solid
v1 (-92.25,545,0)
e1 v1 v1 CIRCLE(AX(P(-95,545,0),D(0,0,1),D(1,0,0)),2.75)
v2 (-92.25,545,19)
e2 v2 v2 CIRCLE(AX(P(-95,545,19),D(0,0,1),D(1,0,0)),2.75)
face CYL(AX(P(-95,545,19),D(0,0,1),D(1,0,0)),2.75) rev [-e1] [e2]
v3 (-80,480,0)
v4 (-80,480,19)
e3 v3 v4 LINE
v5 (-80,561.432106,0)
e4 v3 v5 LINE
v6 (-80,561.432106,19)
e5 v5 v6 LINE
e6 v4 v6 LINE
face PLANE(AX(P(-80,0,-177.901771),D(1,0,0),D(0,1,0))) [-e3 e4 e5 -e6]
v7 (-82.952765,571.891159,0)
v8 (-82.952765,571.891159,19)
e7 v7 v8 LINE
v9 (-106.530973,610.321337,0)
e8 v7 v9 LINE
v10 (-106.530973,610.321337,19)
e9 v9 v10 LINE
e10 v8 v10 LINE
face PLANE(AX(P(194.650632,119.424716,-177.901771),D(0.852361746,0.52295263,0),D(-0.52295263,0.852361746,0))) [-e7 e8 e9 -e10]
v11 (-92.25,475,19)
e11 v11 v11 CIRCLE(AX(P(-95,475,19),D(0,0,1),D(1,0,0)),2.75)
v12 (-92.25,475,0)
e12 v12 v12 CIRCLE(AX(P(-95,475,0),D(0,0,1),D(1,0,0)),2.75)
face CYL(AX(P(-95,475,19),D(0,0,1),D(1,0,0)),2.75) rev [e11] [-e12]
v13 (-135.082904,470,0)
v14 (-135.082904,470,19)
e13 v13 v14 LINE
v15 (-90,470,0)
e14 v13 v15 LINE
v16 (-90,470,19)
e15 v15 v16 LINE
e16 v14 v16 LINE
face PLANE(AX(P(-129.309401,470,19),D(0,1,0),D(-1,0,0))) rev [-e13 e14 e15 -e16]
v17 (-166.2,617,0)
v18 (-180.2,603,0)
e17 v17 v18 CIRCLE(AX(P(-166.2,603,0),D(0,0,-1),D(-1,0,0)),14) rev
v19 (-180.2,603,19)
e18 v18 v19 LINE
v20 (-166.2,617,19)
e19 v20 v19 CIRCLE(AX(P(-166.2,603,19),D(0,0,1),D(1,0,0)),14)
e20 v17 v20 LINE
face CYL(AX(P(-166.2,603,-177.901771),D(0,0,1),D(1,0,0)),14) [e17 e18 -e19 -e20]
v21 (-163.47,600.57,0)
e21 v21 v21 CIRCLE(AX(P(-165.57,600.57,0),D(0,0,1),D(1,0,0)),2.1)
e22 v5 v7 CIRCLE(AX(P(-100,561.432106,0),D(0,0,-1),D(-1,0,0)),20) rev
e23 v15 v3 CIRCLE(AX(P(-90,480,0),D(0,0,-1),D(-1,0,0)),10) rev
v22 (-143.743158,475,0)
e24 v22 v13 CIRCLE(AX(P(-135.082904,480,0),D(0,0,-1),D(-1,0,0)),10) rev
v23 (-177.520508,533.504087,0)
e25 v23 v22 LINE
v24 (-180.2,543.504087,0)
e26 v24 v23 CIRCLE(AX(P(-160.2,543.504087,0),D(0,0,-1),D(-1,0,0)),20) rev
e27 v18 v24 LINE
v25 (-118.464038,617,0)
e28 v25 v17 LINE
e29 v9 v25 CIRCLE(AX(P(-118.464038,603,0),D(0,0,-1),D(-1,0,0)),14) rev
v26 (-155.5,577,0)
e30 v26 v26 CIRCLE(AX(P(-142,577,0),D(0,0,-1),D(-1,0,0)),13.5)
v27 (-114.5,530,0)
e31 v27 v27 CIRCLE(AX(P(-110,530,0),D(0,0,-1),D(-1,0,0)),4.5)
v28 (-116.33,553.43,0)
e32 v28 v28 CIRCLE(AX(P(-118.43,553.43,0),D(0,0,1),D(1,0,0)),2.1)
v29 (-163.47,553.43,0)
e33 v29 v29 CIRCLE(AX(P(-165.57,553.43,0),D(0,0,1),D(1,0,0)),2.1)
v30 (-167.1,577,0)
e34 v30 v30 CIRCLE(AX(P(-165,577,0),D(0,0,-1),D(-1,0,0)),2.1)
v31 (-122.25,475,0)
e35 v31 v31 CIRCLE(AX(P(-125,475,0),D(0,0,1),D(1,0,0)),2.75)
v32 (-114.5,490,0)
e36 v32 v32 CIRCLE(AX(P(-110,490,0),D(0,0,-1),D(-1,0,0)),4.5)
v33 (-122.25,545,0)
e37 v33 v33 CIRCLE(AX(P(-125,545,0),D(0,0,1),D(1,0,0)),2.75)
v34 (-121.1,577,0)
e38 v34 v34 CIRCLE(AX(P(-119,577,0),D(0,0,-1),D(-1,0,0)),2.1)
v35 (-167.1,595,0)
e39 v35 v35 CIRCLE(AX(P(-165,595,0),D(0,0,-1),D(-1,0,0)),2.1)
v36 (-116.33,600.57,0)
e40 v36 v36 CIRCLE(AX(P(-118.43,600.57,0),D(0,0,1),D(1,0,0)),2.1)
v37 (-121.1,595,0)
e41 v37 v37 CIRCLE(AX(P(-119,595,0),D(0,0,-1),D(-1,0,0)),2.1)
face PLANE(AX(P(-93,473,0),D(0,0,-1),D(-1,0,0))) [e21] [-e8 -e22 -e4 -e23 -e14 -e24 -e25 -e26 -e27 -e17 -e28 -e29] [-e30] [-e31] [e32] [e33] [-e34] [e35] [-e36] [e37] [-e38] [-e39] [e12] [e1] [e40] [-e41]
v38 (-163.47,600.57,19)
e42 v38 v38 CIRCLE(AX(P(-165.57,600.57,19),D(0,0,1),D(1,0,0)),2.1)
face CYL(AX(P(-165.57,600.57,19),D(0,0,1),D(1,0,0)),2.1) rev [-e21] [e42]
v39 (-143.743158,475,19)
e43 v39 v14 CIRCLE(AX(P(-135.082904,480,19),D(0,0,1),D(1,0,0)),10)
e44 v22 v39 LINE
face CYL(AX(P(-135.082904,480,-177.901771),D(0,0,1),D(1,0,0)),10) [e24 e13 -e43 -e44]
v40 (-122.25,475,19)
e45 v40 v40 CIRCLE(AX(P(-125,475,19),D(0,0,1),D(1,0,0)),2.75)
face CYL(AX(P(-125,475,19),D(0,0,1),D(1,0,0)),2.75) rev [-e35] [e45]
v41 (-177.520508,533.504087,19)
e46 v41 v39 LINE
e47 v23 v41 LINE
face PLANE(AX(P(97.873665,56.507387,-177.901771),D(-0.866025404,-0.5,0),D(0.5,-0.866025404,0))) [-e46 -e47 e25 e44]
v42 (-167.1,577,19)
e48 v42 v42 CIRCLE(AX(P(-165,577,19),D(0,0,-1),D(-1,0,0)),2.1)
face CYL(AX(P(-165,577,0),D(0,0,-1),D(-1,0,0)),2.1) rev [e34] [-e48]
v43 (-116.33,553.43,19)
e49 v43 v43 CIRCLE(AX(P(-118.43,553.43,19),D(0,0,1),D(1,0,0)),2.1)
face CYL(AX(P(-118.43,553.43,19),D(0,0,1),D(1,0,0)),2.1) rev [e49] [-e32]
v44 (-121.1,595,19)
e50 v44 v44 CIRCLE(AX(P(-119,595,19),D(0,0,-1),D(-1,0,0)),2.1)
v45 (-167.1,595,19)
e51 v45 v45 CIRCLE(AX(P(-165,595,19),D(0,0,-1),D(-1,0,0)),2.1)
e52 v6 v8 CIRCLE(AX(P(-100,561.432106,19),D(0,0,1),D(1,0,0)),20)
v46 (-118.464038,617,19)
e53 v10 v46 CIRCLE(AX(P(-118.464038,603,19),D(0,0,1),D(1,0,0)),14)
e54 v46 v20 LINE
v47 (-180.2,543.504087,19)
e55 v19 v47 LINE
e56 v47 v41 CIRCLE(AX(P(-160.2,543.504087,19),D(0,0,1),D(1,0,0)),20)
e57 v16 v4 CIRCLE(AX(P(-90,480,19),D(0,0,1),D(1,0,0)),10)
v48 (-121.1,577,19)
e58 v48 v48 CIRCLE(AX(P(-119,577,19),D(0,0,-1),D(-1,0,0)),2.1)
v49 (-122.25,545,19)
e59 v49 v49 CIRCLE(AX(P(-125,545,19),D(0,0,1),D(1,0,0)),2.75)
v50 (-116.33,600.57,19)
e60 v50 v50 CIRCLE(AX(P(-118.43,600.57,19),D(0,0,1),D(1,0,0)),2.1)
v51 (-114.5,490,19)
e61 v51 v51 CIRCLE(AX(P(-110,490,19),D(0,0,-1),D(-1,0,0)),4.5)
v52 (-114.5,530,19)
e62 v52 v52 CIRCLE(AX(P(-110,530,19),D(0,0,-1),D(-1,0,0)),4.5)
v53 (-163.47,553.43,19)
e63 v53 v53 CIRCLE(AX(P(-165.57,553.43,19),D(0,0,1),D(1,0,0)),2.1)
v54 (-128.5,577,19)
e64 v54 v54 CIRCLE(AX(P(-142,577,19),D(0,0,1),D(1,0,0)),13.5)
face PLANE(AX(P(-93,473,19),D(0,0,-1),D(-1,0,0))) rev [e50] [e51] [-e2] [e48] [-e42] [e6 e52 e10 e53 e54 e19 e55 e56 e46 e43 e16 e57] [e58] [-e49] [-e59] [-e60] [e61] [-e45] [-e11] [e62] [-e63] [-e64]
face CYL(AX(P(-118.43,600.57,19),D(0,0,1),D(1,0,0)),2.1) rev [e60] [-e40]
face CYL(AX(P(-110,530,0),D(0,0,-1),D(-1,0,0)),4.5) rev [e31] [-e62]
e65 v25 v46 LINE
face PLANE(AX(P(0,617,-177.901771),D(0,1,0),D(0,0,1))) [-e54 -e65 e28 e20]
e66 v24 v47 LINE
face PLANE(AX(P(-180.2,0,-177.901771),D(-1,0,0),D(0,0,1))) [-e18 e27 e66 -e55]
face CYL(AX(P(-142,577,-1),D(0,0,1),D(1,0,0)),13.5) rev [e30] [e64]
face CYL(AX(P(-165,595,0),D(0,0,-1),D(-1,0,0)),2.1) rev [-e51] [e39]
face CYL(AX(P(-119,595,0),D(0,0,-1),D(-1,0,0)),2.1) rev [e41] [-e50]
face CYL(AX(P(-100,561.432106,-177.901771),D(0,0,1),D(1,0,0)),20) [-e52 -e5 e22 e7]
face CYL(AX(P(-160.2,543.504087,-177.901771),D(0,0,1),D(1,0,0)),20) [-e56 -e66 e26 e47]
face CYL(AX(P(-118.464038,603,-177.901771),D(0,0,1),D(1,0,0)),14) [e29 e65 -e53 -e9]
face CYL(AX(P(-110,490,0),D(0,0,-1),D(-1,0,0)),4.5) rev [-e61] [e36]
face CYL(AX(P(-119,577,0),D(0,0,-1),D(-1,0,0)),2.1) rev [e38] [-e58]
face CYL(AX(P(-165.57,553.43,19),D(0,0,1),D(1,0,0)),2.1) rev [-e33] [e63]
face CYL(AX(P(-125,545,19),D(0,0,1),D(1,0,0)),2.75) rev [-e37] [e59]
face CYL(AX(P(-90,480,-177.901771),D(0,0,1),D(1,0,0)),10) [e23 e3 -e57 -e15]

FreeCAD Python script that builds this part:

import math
import FreeCAD as App
import Part
import Sketcher
from FreeCAD import Vector
Q = App.Units.Quantity


def edges_at(feature, points):
    """Names of the edges that pass closest to the given points."""
    edges = feature.Shape.Edges
    near = lambda p: min(range(len(edges)), key=lambda i: edges[i].distToShape(Part.Vertex(*p))[0])
    return sorted({f"Edge{near(p) + 1}" for p in points})

doc = App.newDocument("Part")
body = doc.addObject("PartDesign::Body", "Body")

# Sketch on XY plane
sketch1 = body.newObject("Sketcher::SketchObject", "Sketch")
sketch1.AttachmentSupport = (doc.getObject("XY_Plane"), [""])
sketch1.MapMode = "FlatFace"
sketch1.addGeometry([
    Part.LineSegment(Vector(-170.2, 540.824595, 0), Vector(-129.309401, 470, 0)),  # 0
    Part.LineSegment(Vector(-129.309401, 470, 0), Vector(-93, 470, 0)),  # 1
    Part.ArcOfCircle(Part.Circle(Vector(-93, 473, 0), Vector(0, 0, 1), 3), math.radians(-90), math.radians(0)),  # 2
    Part.LineSegment(Vector(-90, 473, 0), Vector(-90, 564.255273, 0)),  # 3
    Part.LineSegment(Vector(-90, 564.255273, 0), Vector(-116.225329, 607, 0)),  # 4
    Part.LineSegment(Vector(-116.225329, 607, 0), Vector(-170.2, 607, 0)),  # 5
    Part.LineSegment(Vector(-170.2, 607, 0), Vector(-170.2, 540.824595, 0)),  # 6
], False)
sketch1.addConstraint([
    Sketcher.Constraint("Coincident", 0, 2, 1, 1),
    Sketcher.Constraint("Tangent", 1, 2, 2, 1),
    Sketcher.Constraint("Tangent", 2, 2, 3, 1),
    Sketcher.Constraint("Coincident", 3, 2, 4, 1),
    Sketcher.Constraint("Coincident", 4, 2, 5, 1),
    Sketcher.Constraint("Coincident", 5, 2, 6, 1),
    Sketcher.Constraint("Coincident", 6, 2, 0, 1),
    Sketcher.Constraint("Horizontal", 1),
    Sketcher.Constraint("Vertical", 3),
    Sketcher.Constraint("Horizontal", 5),
    Sketcher.Constraint("Vertical", 6),
    Sketcher.Constraint("Radius", 2, 3.0),
    Sketcher.Constraint("Angle", 0, Q("-60 deg")),
    Sketcher.Constraint("DistanceX", 2, 3, -1, 1, 93.0),
    Sketcher.Constraint("DistanceY", -1, 1, 2, 3, 473.0),
    Sketcher.Constraint("DistanceY", -1, 1, 4, 2, 607.0),
    Sketcher.Constraint("DistanceX", 5, 2, -1, 1, 170.2),
    Sketcher.Constraint("DistanceX", 1, 1, 1, 2, 36.309401),
    Sketcher.Constraint("DistanceX", 5, 2, 5, 1, 53.974671),
    Sketcher.Constraint("DistanceY", 3, 1, 3, 2, 91.255273),
])
pad1 = body.newObject("PartDesign::Pad", "Pad")
pad1.Profile = sketch1
pad1.Length = 19
doc.recompute()

fillet = body.newObject("PartDesign::Fillet", "Fillet")
fillet.Base = (pad1, edges_at(pad1, [(-90, 564.255, 9.5), (-129.309, 470, 9.5), (-170.2, 540.825, 9.5)]))
fillet.Radius = 10

# Sketch on XY plane
sketch2 = body.newObject("Sketcher::SketchObject", "Sketch001")
sketch2.AttachmentSupport = (doc.getObject("XY_Plane"), [""])
sketch2.MapMode = "FlatFace"
sketch2.AttachmentOffset = App.Placement(Vector(0, 0, 19), App.Rotation())
sketch2.addGeometry(Part.Circle(Vector(-142, 577, 0), Vector(0, 0, 1), 13.5), False)
sketch2.addConstraint([
    Sketcher.Constraint("Diameter", 0, 27.0),
    Sketcher.Constraint("DistanceX", 0, 3, -1, 1, 142.0),
    Sketcher.Constraint("DistanceY", -1, 1, 0, 3, 577.0),
])
pocket1 = body.newObject("PartDesign::Pocket", "Pocket")
pocket1.Profile = sketch2
pocket1.Length = 20

# Sketch on XY plane
sketch3 = body.newObject("Sketcher::SketchObject", "Sketch002")
sketch3.AttachmentSupport = (doc.getObject("XY_Plane"), [""])
sketch3.MapMode = "FlatFace"
sketch3.addGeometry([
    Part.Circle(Vector(-119, 595, 0), Vector(0, 0, 1), 2.1),
    Part.Circle(Vector(-119, 577, 0), Vector(0, 0, 1), 2.1),
    Part.Circle(Vector(-165, 577, 0), Vector(0, 0, 1), 2.1),
    Part.Circle(Vector(-165, 595, 0), Vector(0, 0, 1), 2.1),
], False)
sketch3.addConstraint([
    Sketcher.Constraint("Equal", 0, 1),
    Sketcher.Constraint("Equal", 1, 2),
    Sketcher.Constraint("Equal", 2, 3),
    Sketcher.Constraint("Horizontal", 1, 3, 2, 3),
    Sketcher.Constraint("Horizontal", 0, 3, 3, 3),
    Sketcher.Constraint("Vertical", 0, 3, 1, 3),
    Sketcher.Constraint("Vertical", 2, 3, 3, 3),
    Sketcher.Constraint("Diameter", 0, 4.2),
    Sketcher.Constraint("DistanceX", 0, 3, -1, 1, 119.0),
    Sketcher.Constraint("DistanceY", -1, 1, 0, 3, 595.0),
    Sketcher.Constraint("DistanceY", -1, 1, 1, 3, 577.0),
    Sketcher.Constraint("DistanceX", 2, 3, -1, 1, 165.0),
])
doc.recompute()
hole = body.newObject("PartDesign::Hole", "Hole")
hole.Profile = sketch3
hole.ThreadType = "None"
hole.Diameter = 4.2
hole.DepthType = "ThroughAll"
hole.Reversed = True

# Sketch on XY plane
sketch4 = body.newObject("Sketcher::SketchObject", "Sketch003")
sketch4.AttachmentSupport = (doc.getObject("XY_Plane"), [""])
sketch4.MapMode = "FlatFace"
sketch4.AttachmentOffset = App.Placement(Vector(0, 0, 19), App.Rotation())
sketch4.addGeometry([
    Part.Circle(Vector(-95, 545, 0), Vector(0, 0, 1), 2.75),  # 0
    Part.Circle(Vector(-125, 545, 0), Vector(0, 0, 1), 2.75),  # 1
    Part.Circle(Vector(-125, 475, 0), Vector(0, 0, 1), 2.75),  # 2
    Part.Circle(Vector(-95, 475, 0), Vector(0, 0, 1), 2.75),  # 3
    Part.Circle(Vector(-110, 490, 0), Vector(0, 0, 1), 2.75),  # 4
    Part.Circle(Vector(-110, 530, 0), Vector(0, 0, 1), 2.75),  # 5
], False)
sketch4.addConstraint([
    Sketcher.Constraint("Equal", 0, 1),
    Sketcher.Constraint("Equal", 1, 2),
    Sketcher.Constraint("Equal", 2, 3),
    Sketcher.Constraint("Equal", 3, 4),
    Sketcher.Constraint("Equal", 4, 5),
    Sketcher.Constraint("Horizontal", 0, 3, 1, 3),
    Sketcher.Constraint("Horizontal", 2, 3, 3, 3),
    Sketcher.Constraint("Vertical", 1, 3, 2, 3),
    Sketcher.Constraint("Vertical", 0, 3, 3, 3),
    Sketcher.Constraint("Vertical", 4, 3, 5, 3),
    Sketcher.Constraint("Diameter", 0, 5.5),
    Sketcher.Constraint("DistanceX", 0, 3, -1, 1, 95.0),
    Sketcher.Constraint("DistanceY", -1, 1, 0, 3, 545.0),
    Sketcher.Constraint("DistanceX", 1, 3, -1, 1, 125.0),
    Sketcher.Constraint("DistanceY", -1, 1, 2, 3, 475.0),
    Sketcher.Constraint("DistanceX", 4, 3, -1, 1, 110.0),
    Sketcher.Constraint("DistanceY", -1, 1, 4, 3, 490.0),
    Sketcher.Constraint("DistanceY", -1, 1, 5, 3, 530.0),
])
doc.recompute()
hole2 = body.newObject("PartDesign::Hole", "Hole001")
hole2.Profile = sketch4
hole2.ThreadType = "None"
hole2.Diameter = 5.5
hole2.DepthType = "ThroughAll"

# Sketch on XY plane
sketch5 = body.newObject("Sketcher::SketchObject", "Sketch004")
sketch5.AttachmentSupport = (doc.getObject("XY_Plane"), [""])
sketch5.MapMode = "FlatFace"
sketch5.AttachmentOffset = App.Placement(Vector(0, 0, 19), App.Rotation())
sketch5.addGeometry([
    Part.Circle(Vector(-165.57, 553.43, 0), Vector(0, 0, 1), 2.1),
    Part.Circle(Vector(-165.57, 600.57, 0), Vector(0, 0, 1), 2.1),
    Part.Circle(Vector(-118.43, 553.43, 0), Vector(0, 0, 1), 2.1),
    Part.Circle(Vector(-118.43, 600.57, 0), Vector(0, 0, 1), 2.1),
], False)
sketch5.addConstraint([
    Sketcher.Constraint("Equal", 0, 1),
    Sketcher.Constraint("Equal", 1, 2),
    Sketcher.Constraint("Equal", 2, 3),
    Sketcher.Constraint("Horizontal", 0, 3, 2, 3),
    Sketcher.Constraint("Horizontal", 1, 3, 3, 3),
    Sketcher.Constraint("Vertical", 0, 3, 1, 3),
    Sketcher.Constraint("Vertical", 2, 3, 3, 3),
    Sketcher.Constraint("Diameter", 0, 4.2),
    Sketcher.Constraint("DistanceX", 0, 3, -1, 1, 165.57),
    Sketcher.Constraint("DistanceY", -1, 1, 0, 3, 553.43),
    Sketcher.Constraint("DistanceY", -1, 1, 1, 3, 600.57),
    Sketcher.Constraint("DistanceX", 2, 3, -1, 1, 118.43),
])
doc.recompute()
hole3 = body.newObject("PartDesign::Hole", "Hole002")
hole3.Profile = sketch5
hole3.ThreadType = "None"
hole3.Diameter = 4.2
hole3.DepthType = "ThroughAll"
doc.recompute()

fillet2 = body.newObject("PartDesign::Fillet", "Fillet001")
fillet2.Base = (hole3, edges_at(hole3, [(-116.225, 607, 9.5), (-170.2, 607, 9.5)]))
fillet2.Radius = 4

# Sketch on XY plane
sketch6 = body.newObject("Sketcher::SketchObject", "Sketch005")
sketch6.AttachmentSupport = (doc.getObject("XY_Plane"), [""])
sketch6.MapMode = "FlatFace"
sketch6.AttachmentOffset = App.Placement(Vector(0, 0, 19), App.Rotation())
sketch6.addGeometry([
    Part.ArcOfCircle(Part.Circle(Vector(-100, 561.432106, 0), Vector(0, 0, 1), 20), math.radians(0), math.radians(31.530517)),  # 0
    Part.LineSegment(Vector(-82.952765, 571.891159, 0), Vector(-106.530973, 610.321337, 0)),  # 1
    Part.ArcOfCircle(Part.Circle(Vector(-118.464038, 603, 0), Vector(0, 0, 1), 14), math.radians(31.530517), math.radians(90)),  # 2
    Part.LineSegment(Vector(-118.464038, 617, 0), Vector(-166.2, 617, 0)),  # 3
    Part.ArcOfCircle(Part.Circle(Vector(-166.2, 603, 0), Vector(0, 0, 1), 14), math.radians(90), math.radians(180)),  # 4
    Part.LineSegment(Vector(-180.2, 603, 0), Vector(-180.2, 543.504087, 0)),  # 5
    Part.ArcOfCircle(Part.Circle(Vector(-160.2, 543.504087, 0), Vector(0, 0, 1), 20), math.radians(-180), math.radians(-150)),  # 6
    Part.LineSegment(Vector(-177.520508, 533.504087, 0), Vector(-143.743158, 475, 0)),  # 7
    Part.ArcOfCircle(Part.Circle(Vector(-135.082904, 480, 0), Vector(0, 0, 1), 10), math.radians(-150), math.radians(-90)),  # 8
    Part.LineSegment(Vector(-135.082904, 470, 0), Vector(-123.535898, 470, 0)),  # 9
    Part.ArcOfCircle(Part.Circle(Vector(-123.535898, 480, 0), Vector(0, 0, 1), 10), math.radians(-150), math.radians(-90)),  # 10
    Part.LineSegment(Vector(-132.196152, 475, 0), Vector(-168.860254, 538.504087, 0)),  # 11
    Part.ArcOfCircle(Part.Circle(Vector(-160.2, 543.504087, 0), Vector(0, 0, 1), 10), math.radians(180), math.radians(210)),  # 12
    Part.LineSegment(Vector(-170.2, 543.504087, 0), Vector(-170.2, 603, 0)),  # 13
    Part.ArcOfCircle(Part.Circle(Vector(-166.2, 603, 0), Vector(0, 0, 1), 4), math.radians(90), math.radians(180)),  # 14
    Part.LineSegment(Vector(-166.2, 607, 0), Vector(-118.464038, 607, 0)),  # 15
    Part.ArcOfCircle(Part.Circle(Vector(-118.464038, 603, 0), Vector(0, 0, 1), 4), math.radians(31.530517), math.radians(90)),  # 16
    Part.LineSegment(Vector(-115.054591, 605.091811, 0), Vector(-91.476383, 566.661632, 0)),  # 17
    Part.ArcOfCircle(Part.Circle(Vector(-100, 561.432106, 0), Vector(0, 0, 1), 10), math.radians(0), math.radians(31.530517)),  # 18
    Part.LineSegment(Vector(-90, 561.432106, 0), Vector(-90, 473, 0)),  # 19
    Part.ArcOfCircle(Part.Circle(Vector(-93, 473, 0), Vector(0, 0, 1), 3), math.radians(-90), math.radians(0)),  # 20
    Part.LineSegment(Vector(-93, 470, 0), Vector(-90, 470, 0)),  # 21
    Part.ArcOfCircle(Part.Circle(Vector(-90, 480, 0), Vector(0, 0, 1), 10), math.radians(-90), math.radians(0)),  # 22
    Part.LineSegment(Vector(-80, 480, 0), Vector(-80, 561.432106, 0)),  # 23
], False)
sketch6.addConstraint([
    Sketcher.Constraint("Tangent", 0, 2, 1, 1),
    Sketcher.Constraint("Tangent", 1, 2, 2, 1),
    Sketcher.Constraint("Tangent", 2, 2, 3, 1),
    Sketcher.Constraint("Tangent", 3, 2, 4, 1),
    Sketcher.Constraint("Tangent", 4, 2, 5, 1),
    Sketcher.Constraint("Tangent", 5, 2, 6, 1),
    Sketcher.Constraint("Tangent", 6, 2, 7, 1),
    Sketcher.Constraint("Tangent", 7, 2, 8, 1),
    Sketcher.Constraint("Tangent", 8, 2, 9, 1),
    Sketcher.Constraint("Tangent", 9, 2, 10, 2),
    Sketcher.Constraint("Tangent", 10, 1, 11, 1),
    Sketcher.Constraint("Tangent", 11, 2, 12, 2),
    Sketcher.Constraint("Tangent", 12, 1, 13, 1),
    Sketcher.Constraint("Tangent", 13, 2, 14, 2),
    Sketcher.Constraint("Tangent", 14, 1, 15, 1),
    Sketcher.Constraint("Tangent", 15, 2, 16, 2),
    Sketcher.Constraint("Tangent", 16, 1, 17, 1),
    Sketcher.Constraint("Tangent", 17, 2, 18, 2),
    Sketcher.Constraint("Tangent", 18, 1, 19, 1),
    Sketcher.Constraint("Tangent", 19, 2, 20, 2),
    Sketcher.Constraint("Tangent", 20, 1, 21, 1),
    Sketcher.Constraint("Tangent", 21, 2, 22, 1),
    Sketcher.Constraint("Tangent", 22, 2, 23, 1),
    Sketcher.Constraint("Tangent", 23, 2, 0, 1),
    Sketcher.Constraint("Horizontal", 3),
    Sketcher.Constraint("Vertical", 5),
    Sketcher.Constraint("Horizontal", 9),
    Sketcher.Constraint("Vertical", 13),
    Sketcher.Constraint("Horizontal", 15),
    Sketcher.Constraint("Vertical", 19),
    Sketcher.Constraint("Horizontal", 21),
    Sketcher.Constraint("Vertical", 23),
    Sketcher.Constraint("Coincident", 12, 3, 6, 3),
    Sketcher.Constraint("Coincident", 14, 3, 4, 3),
    Sketcher.Constraint("Coincident", 16, 3, 2, 3),
    Sketcher.Constraint("Coincident", 18, 3, 0, 3),
    Sketcher.Constraint("Equal", 2, 4),
    Sketcher.Constraint("Equal", 0, 6),
    Sketcher.Constraint("Equal", 8, 10),
    Sketcher.Constraint("Equal", 10, 12),
    Sketcher.Constraint("Equal", 12, 18),
    Sketcher.Constraint("Equal", 18, 22),
    Sketcher.Constraint("Parallel", 7, 11),
    Sketcher.Constraint("Horizontal", 10, 3, 22, 3),
    Sketcher.Constraint("Vertical", 22, 3, 18, 1),
    Sketcher.Constraint("Radius", 0, 20.0),
    Sketcher.Constraint("Radius", 2, 14.0),
    Sketcher.Constraint("Radius", 20, 3.0),
    Sketcher.Constraint("Angle", 7, Q("-60 deg")),
    Sketcher.Constraint("DistanceX", 0, 3, -1, 1, 100.0),
    Sketcher.Constraint("DistanceY", -1, 1, 2, 3, 603.0),
    Sketcher.Constraint("DistanceY", -1, 1, 8, 3, 480.0),
    Sketcher.Constraint("DistanceX", 4, 3, -1, 1, 166.2),
    Sketcher.Constraint("Distance", 1, 45.0867),
    Sketcher.Constraint("Distance", 7, 67.554701),
    Sketcher.Constraint("DistanceX", 3, 2, 3, 1, 47.735962),
])
pad2 = body.newObject("PartDesign::Pad", "Pad001")
pad2.Profile = sketch6
pad2.Length = 19
pad2.Reversed = True

# Sketch on XY plane
sketch7 = body.newObject("Sketcher::SketchObject", "Sketch006")
sketch7.AttachmentSupport = (doc.getObject("XY_Plane"), [""])
sketch7.MapMode = "FlatFace"
sketch7.addGeometry([
    Part.Circle(Vector(-110, 490, 0), Vector(0, 0, 1), 4.5),
    Part.Circle(Vector(-110, 530, 0), Vector(0, 0, 1), 4.5),
], False)
sketch7.addConstraint([
    Sketcher.Constraint("Equal", 0, 1),
    Sketcher.Constraint("Vertical", 0, 3, 1, 3),
    Sketcher.Constraint("Diameter", 0, 9.0),
    Sketcher.Constraint("DistanceX", 0, 3, -1, 1, 110.0),
    Sketcher.Constraint("DistanceY", -1, 1, 0, 3, 490.0),
    Sketcher.Constraint("DistanceY", -1, 1, 1, 3, 530.0),
])
doc.recompute()
hole4 = body.newObject("PartDesign::Hole", "Hole003")
hole4.Profile = sketch7
hole4.ThreadType = "None"
hole4.Diameter = 9
hole4.DepthType = "ThroughAll"
hole4.Reversed = True

doc.recompute()
